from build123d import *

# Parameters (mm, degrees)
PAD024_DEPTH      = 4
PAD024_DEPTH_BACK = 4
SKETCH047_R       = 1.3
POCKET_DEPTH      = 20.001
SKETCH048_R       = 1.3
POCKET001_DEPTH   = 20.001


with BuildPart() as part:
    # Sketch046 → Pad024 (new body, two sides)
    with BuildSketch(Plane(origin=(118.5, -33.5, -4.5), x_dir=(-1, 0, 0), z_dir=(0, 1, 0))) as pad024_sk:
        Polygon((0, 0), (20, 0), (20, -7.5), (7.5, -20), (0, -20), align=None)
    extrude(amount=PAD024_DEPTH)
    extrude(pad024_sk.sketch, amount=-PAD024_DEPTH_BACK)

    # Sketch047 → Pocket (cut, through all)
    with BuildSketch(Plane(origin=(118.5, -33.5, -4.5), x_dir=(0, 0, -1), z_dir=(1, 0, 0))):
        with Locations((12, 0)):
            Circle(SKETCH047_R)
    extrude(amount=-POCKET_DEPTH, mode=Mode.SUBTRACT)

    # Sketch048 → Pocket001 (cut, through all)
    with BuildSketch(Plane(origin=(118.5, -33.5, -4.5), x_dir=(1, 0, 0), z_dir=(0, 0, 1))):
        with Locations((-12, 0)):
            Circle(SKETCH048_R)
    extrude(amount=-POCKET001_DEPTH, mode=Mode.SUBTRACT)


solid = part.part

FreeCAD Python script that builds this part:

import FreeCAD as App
import Part
import Sketcher

V = App.Vector
Q = App.Units.Quantity


def add_polygon(sketch, points):
    """Adds a closed chain of lines whose ends are joined by coincident constraints."""
    first, n = sketch.GeometryCount, len(points)
    for a, b in zip(points, points[1:] + points[:1]):
        sketch.addGeometry(Part.LineSegment(App.Vector(*a, 0), App.Vector(*b, 0)), False)
    for i in range(n):
        sketch.addConstraint(Sketcher.Constraint("Coincident", first + i, 2, first + (i + 1) % n, 1))

doc = App.newDocument("Part")
body = doc.addObject("PartDesign::Body", "Body")

# Sketch on XZ plane
sketch1 = body.newObject("Sketcher::SketchObject", "Sketch")
sketch1.AttachmentSupport = (doc.getObject("XZ_Plane"), [""])
sketch1.MapMode = "FlatFace"
sketch1.AttachmentOffset = App.Placement(V(0, 0, 33.5), App.Rotation())
add_polygon(sketch1, [(98, -4), (118, -4), (118, -24), (111, -24), (98, -12)])  # lines 0-4
sketch1.addConstraint(Sketcher.Constraint("Horizontal", 0))
sketch1.addConstraint(Sketcher.Constraint("Vertical", 1))
sketch1.addConstraint(Sketcher.Constraint("Horizontal", 2))
sketch1.addConstraint(Sketcher.Constraint("Vertical", 4))
sketch1.addConstraint(Sketcher.Constraint("Equal", 0, 1))
sketch1.addConstraint(Sketcher.Constraint("Equal", 2, 4))
sketch1.addConstraint(Sketcher.Constraint("DistanceX", 0, 1, 0, 2, Q("20 mm")))
sketch1.addConstraint(Sketcher.Constraint("DistanceX", 2, 2, 2, 1, Q("7.5 mm")))
sketch1.addConstraint(Sketcher.Constraint("DistanceX", -1, 1, 2, 2, Q("111 mm")))
sketch1.addConstraint(Sketcher.Constraint("DistanceY", 3, 2, -1, 1, Q("12 mm")))
pad1 = body.newObject("PartDesign::Pad", "Pad")
pad1.Profile = sketch1
pad1.Type = "TwoLengths"
pad1.Length = 4
pad1.Length2 = 4
pad1.Reversed = True

# Sketch on YZ plane
sketch2 = body.newObject("Sketcher::SketchObject", "Sketch001")
sketch2.AttachmentSupport = (doc.getObject("YZ_Plane"), [""])
sketch2.MapMode = "FlatFace"
sketch2.AttachmentOffset = App.Placement(V(0, 0, 118.5), App.Rotation())
sketch2.addGeometry(Part.Circle(V(-33.5, -16.5, 0), V(0, 0, 1), 1.3), False)
sketch2.addConstraint(Sketcher.Constraint("Diameter", 0, Q("2.6 mm")))
sketch2.addConstraint(Sketcher.Constraint("DistanceX", 0, 3, -1, 1, Q("33.5 mm")))
sketch2.addConstraint(Sketcher.Constraint("DistanceY", 0, 3, -1, 1, Q("16.5 mm")))
pocket1 = body.newObject("PartDesign::Pocket", "Pocket")
pocket1.Profile = sketch2
pocket1.Type = "ThroughAll"

# Sketch on XY plane
sketch3 = body.newObject("Sketcher::SketchObject", "Sketch002")
sketch3.AttachmentSupport = (doc.getObject("XY_Plane"), [""])
sketch3.MapMode = "FlatFace"
sketch3.AttachmentOffset = App.Placement(V(0, 0, -4.5), App.Rotation())
sketch3.addGeometry(Part.Circle(V(106.5, -33.5, 0), V(0, 0, 1), 1.3), False)
sketch3.addConstraint(Sketcher.Constraint("Diameter", 0, Q("2.6 mm")))
sketch3.addConstraint(Sketcher.Constraint("DistanceX", -1, 1, 0, 3, Q("106.5 mm")))
sketch3.addConstraint(Sketcher.Constraint("DistanceY", 0, 3, -1, 1, Q("33.5 mm")))
pocket2 = body.newObject("PartDesign::Pocket", "Pocket001")
pocket2.Profile = sketch3
pocket2.Type = "ThroughAll"

doc.recompute()
